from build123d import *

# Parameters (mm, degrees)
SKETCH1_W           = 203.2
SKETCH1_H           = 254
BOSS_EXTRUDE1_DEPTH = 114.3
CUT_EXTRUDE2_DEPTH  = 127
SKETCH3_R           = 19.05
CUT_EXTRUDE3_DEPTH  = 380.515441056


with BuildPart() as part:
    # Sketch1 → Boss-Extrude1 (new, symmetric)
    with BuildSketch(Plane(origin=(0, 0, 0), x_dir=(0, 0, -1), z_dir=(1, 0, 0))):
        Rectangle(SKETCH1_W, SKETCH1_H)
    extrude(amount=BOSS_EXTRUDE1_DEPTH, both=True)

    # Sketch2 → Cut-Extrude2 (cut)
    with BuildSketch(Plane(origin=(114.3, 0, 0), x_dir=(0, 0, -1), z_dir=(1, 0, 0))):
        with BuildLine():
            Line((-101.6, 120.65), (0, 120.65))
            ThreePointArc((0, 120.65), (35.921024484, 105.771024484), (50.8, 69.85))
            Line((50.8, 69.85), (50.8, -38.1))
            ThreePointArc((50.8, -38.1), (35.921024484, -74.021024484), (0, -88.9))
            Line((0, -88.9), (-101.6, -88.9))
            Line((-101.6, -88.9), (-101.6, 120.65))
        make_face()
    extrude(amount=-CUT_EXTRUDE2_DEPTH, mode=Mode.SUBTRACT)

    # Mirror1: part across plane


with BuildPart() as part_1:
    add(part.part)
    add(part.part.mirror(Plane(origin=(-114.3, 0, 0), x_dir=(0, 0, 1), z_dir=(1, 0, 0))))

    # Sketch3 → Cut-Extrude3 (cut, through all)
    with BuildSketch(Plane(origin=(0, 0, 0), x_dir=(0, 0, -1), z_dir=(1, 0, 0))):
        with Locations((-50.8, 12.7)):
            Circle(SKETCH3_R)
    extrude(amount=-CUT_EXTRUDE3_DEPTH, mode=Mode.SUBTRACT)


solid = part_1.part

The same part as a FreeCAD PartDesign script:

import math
import FreeCAD as App
import Part
import Sketcher
from FreeCAD import Vector
Q = App.Units.Quantity


def add_polygon(sketch, points):
    """Adds a closed chain of lines whose ends are joined by coincident constraints."""
    first, n = sketch.GeometryCount, len(points)
    for a, b in zip(points, points[1:] + points[:1]):
        sketch.addGeometry(Part.LineSegment(App.Vector(*a, 0), App.Vector(*b, 0)), False)
    for i in range(n):
        sketch.addConstraint(Sketcher.Constraint("Coincident", first + i, 2, first + (i + 1) % n, 1))

doc = App.newDocument("Part")
body = doc.addObject("PartDesign::Body", "Body")

sketch1 = doc.addObject("Sketcher::SketchObject", "Sketch")
body.addObject(sketch1)
sketch1.AttachmentSupport = (doc.YZ_Plane, [""])
sketch1.MapMode = "FlatFace"
add_polygon(sketch1, [(127, 102), (-127, 102), (-127, -102), (127, -102)])
sketch1.addConstraint([
    Sketcher.Constraint("Horizontal", 0),
    Sketcher.Constraint("Vertical", 1),
    Sketcher.Constraint("Horizontal", 2),
    Sketcher.Constraint("Vertical", 3),
    Sketcher.Constraint("Symmetric", 0, 2, 2, 2, -1, 1),
    Sketcher.Constraint("DistanceX", 0, 2, 0, 1, Q("10 in")),
    Sketcher.Constraint("DistanceY", 1, 2, 1, 1, Q("8 in")),
])
pad1 = doc.addObject("PartDesign::Pad", "Pad")
body.addObject(pad1)
pad1.Profile = sketch1
pad1.Length = Q("9 in")
pad1.Midplane = True

sketch2 = doc.addObject("Sketcher::SketchObject", "Sketch001")
body.addObject(sketch2)
sketch2.AttachmentSupport = (doc.YZ_Plane, [""])
sketch2.MapMode = "FlatFace"
sketch2.AttachmentOffset = App.Placement(Vector(0, 0, 4.5 * 25.4), App.Rotation())
sketch2.addGeometry([
    Part.LineSegment(Vector(121, 0, 0), Vector(121, 102, 0)),
    Part.LineSegment(Vector(121, 102, 0), Vector(-89, 102, 0)),
    Part.LineSegment(Vector(-89, 102, 0), Vector(-89, 0, 0)),
    Part.ArcOfCircle(Part.Circle(Vector(-38, 0, 0), Vector(0, 0, 1), 51), math.radians(-180), math.radians(-90)),
    Part.LineSegment(Vector(-38, -51, 0), Vector(70, -51, 0)),
    Part.ArcOfCircle(Part.Circle(Vector(70, 0, 0), Vector(0, 0, 1), 51), math.radians(-90), math.radians(0)),
], False)
sketch2.addConstraint([
    Sketcher.Constraint("Coincident", 0, 2, 1, 1),
    Sketcher.Constraint("Coincident", 1, 2, 2, 1),
    Sketcher.Constraint("Tangent", 2, 2, 3, 1),
    Sketcher.Constraint("Tangent", 3, 2, 4, 1),
    Sketcher.Constraint("Tangent", 4, 2, 5, 1),
    Sketcher.Constraint("Tangent", 5, 2, 0, 1),
    Sketcher.Constraint("Vertical", 0),
    Sketcher.Constraint("Horizontal", 1),
    Sketcher.Constraint("Vertical", 2),
    Sketcher.Constraint("Horizontal", 4),
    Sketcher.Constraint("Equal", 3, 5),
    Sketcher.Constraint("PointOnObject", 3, 3, -1),
    Sketcher.Constraint("Radius", 3, Q("2 in")),
    Sketcher.Constraint("DistanceY", 0, 1, 0, 2, Q("4 in")),
    Sketcher.Constraint("DistanceX", 1, 2, 1, 1, Q("8.25 in")),
    Sketcher.Constraint("DistanceX", 3, 3, -1, 1, Q("1.5 in")),
])
pocket1 = doc.addObject("PartDesign::Pocket", "Pocket")
body.addObject(pocket1)
pocket1.Profile = sketch2
pocket1.Length = Q("5 in")
body2 = doc.addObject("PartDesign::Body", "Body001")
doc.recompute()

body2.BaseFeature = body
doc.recompute()

mirroring = doc.addObject("Part::Mirroring", "Mirroring")
mirroring.Source = body
mirroring.Base = Vector(-114.3, 0, 0)
mirroring.Normal = Vector(1, 0, 0)
body3 = doc.addObject("PartDesign::Body", "Body002")
body3.BaseFeature = mirroring
boolean = doc.addObject("PartDesign::Boolean", "Boolean")
body2.addObject(boolean)
boolean.Type = "Fuse"
boolean.addObjects([body3])
doc.recompute()

sketch3 = doc.addObject("Sketcher::SketchObject", "Sketch002")
body2.addObject(sketch3)
sketch3.AttachmentSupport = (doc.getObject("YZ_Plane001"), [""])
sketch3.MapMode = "FlatFace"
sketch3.addGeometry(Part.Circle(Vector(13, 51, 0), Vector(0, 0, 1), 19), False)
sketch3.addConstraint([
    Sketcher.Constraint("Diameter", 0, Q("1.5 in")),
    Sketcher.Constraint("DistanceY", -1, 1, 0, 3, Q("2 in")),
    Sketcher.Constraint("DistanceX", -1, 1, 0, 3, Q("0.5 in")),
])
pocket2 = doc.addObject("PartDesign::Pocket", "Pocket001")
body2.addObject(pocket2)
pocket2.Profile = sketch3
pocket2.Type = "ThroughAll"
mirroring.Visibility = False

doc.recompute()
